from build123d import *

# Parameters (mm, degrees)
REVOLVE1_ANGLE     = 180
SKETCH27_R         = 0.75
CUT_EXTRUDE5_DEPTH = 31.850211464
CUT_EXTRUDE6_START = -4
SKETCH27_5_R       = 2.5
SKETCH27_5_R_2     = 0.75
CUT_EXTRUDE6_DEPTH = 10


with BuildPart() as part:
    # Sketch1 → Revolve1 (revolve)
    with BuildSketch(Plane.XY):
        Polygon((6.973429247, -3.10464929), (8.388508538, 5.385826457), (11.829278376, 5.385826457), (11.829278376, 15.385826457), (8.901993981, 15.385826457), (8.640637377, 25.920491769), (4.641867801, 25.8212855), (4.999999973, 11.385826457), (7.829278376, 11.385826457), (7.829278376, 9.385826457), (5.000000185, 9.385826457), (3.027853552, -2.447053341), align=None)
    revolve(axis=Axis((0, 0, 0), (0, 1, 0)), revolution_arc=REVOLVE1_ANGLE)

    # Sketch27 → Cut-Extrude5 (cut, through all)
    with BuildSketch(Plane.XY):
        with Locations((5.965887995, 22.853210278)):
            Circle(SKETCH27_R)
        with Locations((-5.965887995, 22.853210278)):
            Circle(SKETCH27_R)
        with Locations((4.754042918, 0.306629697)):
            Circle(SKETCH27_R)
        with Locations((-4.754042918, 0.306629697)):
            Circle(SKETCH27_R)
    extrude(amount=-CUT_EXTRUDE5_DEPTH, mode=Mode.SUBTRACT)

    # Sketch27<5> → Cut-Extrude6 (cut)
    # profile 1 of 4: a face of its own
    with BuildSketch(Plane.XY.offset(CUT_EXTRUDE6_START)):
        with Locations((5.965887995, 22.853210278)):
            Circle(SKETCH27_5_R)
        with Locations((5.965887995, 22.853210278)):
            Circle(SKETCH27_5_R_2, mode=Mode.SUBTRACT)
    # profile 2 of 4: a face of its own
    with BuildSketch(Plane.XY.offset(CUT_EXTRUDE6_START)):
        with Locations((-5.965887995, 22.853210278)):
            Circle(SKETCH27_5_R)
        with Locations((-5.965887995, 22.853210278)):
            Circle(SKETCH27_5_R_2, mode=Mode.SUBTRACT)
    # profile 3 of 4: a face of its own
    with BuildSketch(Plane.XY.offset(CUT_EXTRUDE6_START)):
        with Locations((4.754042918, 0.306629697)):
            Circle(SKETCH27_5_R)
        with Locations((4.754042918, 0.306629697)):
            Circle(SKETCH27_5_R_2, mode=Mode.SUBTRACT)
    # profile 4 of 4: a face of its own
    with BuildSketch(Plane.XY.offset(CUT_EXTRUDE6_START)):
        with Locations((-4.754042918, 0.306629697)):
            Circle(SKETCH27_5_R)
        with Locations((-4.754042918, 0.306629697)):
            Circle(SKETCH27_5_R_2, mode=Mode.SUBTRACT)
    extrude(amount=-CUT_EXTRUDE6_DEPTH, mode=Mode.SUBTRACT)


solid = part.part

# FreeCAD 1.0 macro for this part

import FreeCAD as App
import Part
import Sketcher
Q = App.Units.Quantity


def add_polygon(sketch, points):
    """Adds a closed chain of lines whose ends are joined by coincident constraints."""
    first, n = sketch.GeometryCount, len(points)
    for a, b in zip(points, points[1:] + points[:1]):
        sketch.addGeometry(Part.LineSegment(App.Vector(*a, 0), App.Vector(*b, 0)), False)
    for i in range(n):
        sketch.addConstraint(Sketcher.Constraint("Coincident", first + i, 2, first + (i + 1) % n, 1))

doc = App.newDocument("Part")
body = doc.addObject("PartDesign::Body", "Body")

# Sketch on XY plane
sketch1 = body.newObject("Sketcher::SketchObject", "Sketch")
sketch1.AttachmentSupport = (doc.getObject("XY_Plane"), [""])
sketch1.MapMode = "FlatFace"
add_polygon(sketch1, [(7, -3.1), (8.4, 5.4), (11.8, 5.4), (11.8, 15.4), (8.9, 15.4), (8.6, 25.9), (4.6, 25.8), (5, 11.4), (7.8, 11.4), (7.8, 9.4), (5, 9.4), (3, -2.4)])  # lines 0-11
sketch1.addConstraint([
    Sketcher.Constraint("Horizontal", 1),
    Sketcher.Constraint("Vertical", 2),
    Sketcher.Constraint("Horizontal", 3),
    Sketcher.Constraint("Horizontal", 7),
    Sketcher.Constraint("Vertical", 8),
    Sketcher.Constraint("Horizontal", 9),
    Sketcher.Constraint("Perpendicular", 4, 5),
    Sketcher.Constraint("Perpendicular", 5, 6),
    Sketcher.Constraint("Parallel", 0, 10),
    Sketcher.Constraint("Perpendicular", 10, 11),
    Sketcher.Constraint("Vertical", 6, 2, 9, 2),
    Sketcher.Constraint("Equal", 5, 11),
    Sketcher.Constraint("DistanceY", 2, 1, 2, 2, Q("10 mm")),
    Sketcher.Constraint("DistanceY", 8, 2, 8, 1, Q("2 mm")),
    Sketcher.Constraint("Distance", 5, Q("4 mm")),
    Sketcher.Constraint("DistanceX", -1, 1, 6, 2, Q("5 mm")),
    Sketcher.Constraint("DistanceY", 6, 2, 3, 2, Q("4 mm")),
    Sketcher.Constraint("DistanceX", 7, 2, 2, 2, Q("4 mm")),
    Sketcher.Constraint("Distance", 6, Q("14.439901 mm")),
    Sketcher.Constraint("Distance", 10, Q("11.9961 mm")),
    Sketcher.Constraint("DistanceX", 1, 1, 1, 2, Q("3.44077 mm")),
    Sketcher.Constraint("DistanceX", 7, 1, 7, 2, Q("2.829278 mm")),
    Sketcher.Constraint("DistanceX", 3, 2, 3, 1, Q("2.927284 mm")),
    Sketcher.Constraint("DistanceY", -1, 1, 4, 2, Q("25.920492 mm")),
])
revolution = body.newObject("PartDesign::Revolution", "Revolution")
revolution.Profile = sketch1
revolution.ReferenceAxis = (sketch1, ["V_Axis"])
revolution.Angle = 180

# Sketch on XY plane
sketch2 = body.newObject("Sketcher::SketchObject", "Sketch001")
sketch2.AttachmentSupport = (doc.getObject("XY_Plane"), [""])
sketch2.MapMode = "FlatFace"
sketch2.addGeometry([
    Part.Circle(App.Vector(6, 22.9, 0), App.Vector(0, 0, 1), 0.8),
    Part.Circle(App.Vector(-6, 22.9, 0), App.Vector(0, 0, 1), 0.8),
    Part.Circle(App.Vector(4.8, 0.3, 0), App.Vector(0, 0, 1), 0.8),
    Part.Circle(App.Vector(-4.8, 0.3, 0), App.Vector(0, 0, 1), 0.8),
], False)
sketch2.addConstraint([
    Sketcher.Constraint("Equal", 0, 1),
    Sketcher.Constraint("Equal", 1, 2),
    Sketcher.Constraint("Equal", 2, 3),
    Sketcher.Constraint("Symmetric", 0, 3, 1, 3, -2),
    Sketcher.Constraint("Symmetric", 2, 3, 3, 3, -2),
    Sketcher.Constraint("Diameter", 0, Q("1.5 mm")),
    Sketcher.Constraint("DistanceY", -1, 1, 0, 3, Q("22.85321 mm")),
    Sketcher.Constraint("DistanceY", -1, 1, 2, 3, Q("0.30663 mm")),
    Sketcher.Constraint("DistanceX", 1, 3, 2, 3, Q("10.719931 mm")),
    Sketcher.Constraint("DistanceX", -1, 1, 0, 3, Q("5.965888 mm")),
])
pocket1 = body.newObject("PartDesign::Pocket", "Pocket")
pocket1.Profile = sketch2
pocket1.Type = "ThroughAll"

# Sketch on XY plane
sketch3 = body.newObject("Sketcher::SketchObject", "Sketch002")
sketch3.AttachmentSupport = (doc.getObject("XY_Plane"), [""])
sketch3.MapMode = "FlatFace"
sketch3.AttachmentOffset = App.Placement(App.Vector(0, 0, -4), App.Rotation())
sketch3.addGeometry([
    Part.Circle(App.Vector(6, 22.9, 0), App.Vector(0, 0, 1), 2.5),  # 0
    Part.Circle(App.Vector(6, 22.9, 0), App.Vector(0, 0, 1), 0.8),  # 1
    Part.Circle(App.Vector(-6, 22.9, 0), App.Vector(0, 0, 1), 2.5),  # 2
    Part.Circle(App.Vector(-6, 22.9, 0), App.Vector(0, 0, 1), 0.8),  # 3
    Part.Circle(App.Vector(4.8, 0.3, 0), App.Vector(0, 0, 1), 2.5),  # 4
    Part.Circle(App.Vector(4.8, 0.3, 0), App.Vector(0, 0, 1), 0.8),  # 5
    Part.Circle(App.Vector(-4.8, 0.3, 0), App.Vector(0, 0, 1), 2.5),  # 6
    Part.Circle(App.Vector(-4.8, 0.3, 0), App.Vector(0, 0, 1), 0.8),  # 7
], False)
sketch3.addConstraint([
    Sketcher.Constraint("Coincident", 1, 3, 0, 3),
    Sketcher.Constraint("Coincident", 3, 3, 2, 3),
    Sketcher.Constraint("Coincident", 5, 3, 4, 3),
    Sketcher.Constraint("Coincident", 7, 3, 6, 3),
    Sketcher.Constraint("Equal", 0, 2),
    Sketcher.Constraint("Equal", 1, 3),
    Sketcher.Constraint("Equal", 2, 4),
    Sketcher.Constraint("Equal", 3, 5),
    Sketcher.Constraint("Equal", 4, 6),
    Sketcher.Constraint("Equal", 5, 7),
    Sketcher.Constraint("Symmetric", 0, 3, 2, 3, -2),
    Sketcher.Constraint("Symmetric", 4, 3, 6, 3, -2),
    Sketcher.Constraint("Diameter", 0, Q("5 mm")),
    Sketcher.Constraint("Diameter", 1, Q("1.5 mm")),
    Sketcher.Constraint("DistanceY", -1, 1, 0, 3, Q("22.85321 mm")),
    Sketcher.Constraint("DistanceY", -1, 1, 4, 3, Q("0.30663 mm")),
    Sketcher.Constraint("DistanceX", 2, 3, 4, 3, Q("10.719931 mm")),
    Sketcher.Constraint("DistanceX", -1, 1, 0, 3, Q("5.965888 mm")),
])
pocket2 = body.newObject("PartDesign::Pocket", "Pocket001")
pocket2.Profile = sketch3
pocket2.Length = 10

doc.recompute()
